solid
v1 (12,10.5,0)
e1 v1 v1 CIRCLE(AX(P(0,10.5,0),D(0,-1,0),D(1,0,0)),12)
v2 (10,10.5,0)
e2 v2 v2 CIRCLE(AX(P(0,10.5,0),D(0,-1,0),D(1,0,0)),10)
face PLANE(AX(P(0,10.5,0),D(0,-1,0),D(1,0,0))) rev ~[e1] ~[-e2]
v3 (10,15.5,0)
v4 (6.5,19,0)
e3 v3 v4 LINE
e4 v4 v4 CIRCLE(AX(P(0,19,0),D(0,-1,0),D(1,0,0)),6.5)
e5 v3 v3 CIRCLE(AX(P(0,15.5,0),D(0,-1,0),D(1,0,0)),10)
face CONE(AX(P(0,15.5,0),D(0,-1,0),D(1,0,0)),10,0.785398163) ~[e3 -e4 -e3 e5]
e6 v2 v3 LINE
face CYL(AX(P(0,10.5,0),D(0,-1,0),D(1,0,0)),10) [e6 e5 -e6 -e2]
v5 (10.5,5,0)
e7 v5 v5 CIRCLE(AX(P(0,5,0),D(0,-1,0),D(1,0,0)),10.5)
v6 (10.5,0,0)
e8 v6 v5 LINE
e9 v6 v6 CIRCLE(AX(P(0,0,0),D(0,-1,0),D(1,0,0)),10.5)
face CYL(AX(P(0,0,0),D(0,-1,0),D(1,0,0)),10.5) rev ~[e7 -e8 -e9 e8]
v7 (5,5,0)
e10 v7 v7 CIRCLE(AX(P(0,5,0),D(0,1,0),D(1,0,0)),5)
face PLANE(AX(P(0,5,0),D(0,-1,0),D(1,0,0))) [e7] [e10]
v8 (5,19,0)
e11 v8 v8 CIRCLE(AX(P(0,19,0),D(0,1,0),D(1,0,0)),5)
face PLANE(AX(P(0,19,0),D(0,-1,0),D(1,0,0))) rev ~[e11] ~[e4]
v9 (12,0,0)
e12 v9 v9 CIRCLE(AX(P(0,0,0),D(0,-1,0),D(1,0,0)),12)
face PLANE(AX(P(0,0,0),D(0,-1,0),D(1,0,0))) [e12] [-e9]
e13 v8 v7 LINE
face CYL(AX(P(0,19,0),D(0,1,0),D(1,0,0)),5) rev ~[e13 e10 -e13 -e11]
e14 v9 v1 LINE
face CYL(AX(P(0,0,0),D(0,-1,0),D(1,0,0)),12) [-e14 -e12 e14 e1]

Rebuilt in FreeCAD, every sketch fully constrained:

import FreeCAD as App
import Part
import Sketcher

V = App.Vector
Q = App.Units.Quantity


def edges_at(feature, points):
    """Names of the edges that pass closest to the given points."""
    edges = feature.Shape.Edges
    near = lambda p: min(range(len(edges)), key=lambda i: edges[i].distToShape(Part.Vertex(*p))[0])
    return sorted({f"Edge{near(p) + 1}" for p in points})

doc = App.newDocument("Part")
params = doc.addObject("Spreadsheet::Sheet", "Params")
for row, (alias, value) in enumerate([
    ("sketch1_diameter", "24 mm"),
    ("pad1_length", "19 mm"),
    ("sketch2_diameter", "24 mm"),
    ("sketch2_diameter2", "20 mm"),
    ("pocket1_length", "13 mm"),
    ("sketch3_diameter", "10 mm"),
    ("pocket2_length", "25 mm"),
    ("sketch4_diameter", "21 mm"),
    ("pocket3_length", "5 mm"),
    ("chamfer_size", "3.5 mm"),
], start=1):
    params.set(f"A{row}", alias)
    params.set(f"B{row}", "=" + value)
    params.setAlias(f"B{row}", alias)

body = doc.addObject("PartDesign::Body", "Body")

sketch1 = doc.addObject("Sketcher::SketchObject", "Sketch")
body.addObject(sketch1)
sketch1.AttachmentSupport = (doc.XZ_Plane, [""])
sketch1.MapMode = "FlatFace"
sketch1.addGeometry(Part.Circle(V(0, 0, 0), V(0, 0, 1), 12), False)
sketch1.addConstraint(Sketcher.Constraint("Coincident", 0, 3, -1, 1))
sketch1.addConstraint(Sketcher.Constraint("Diameter", 0, Q("24 mm")))
sketch1.setExpression("Constraints[1]", "Params.sketch1_diameter")
pad1 = doc.addObject("PartDesign::Pad", "Pad")
body.addObject(pad1)
pad1.Profile = sketch1
pad1.setExpression("Length", "Params.pad1_length")
pad1.Reversed = True

sketch2 = doc.addObject("Sketcher::SketchObject", "Sketch001")
body.addObject(sketch2)
sketch2.AttachmentSupport = (doc.XZ_Plane, [""])
sketch2.MapMode = "FlatFace"
sketch2.AttachmentOffset = App.Placement(V(0, 0, -10.5), App.Rotation())
sketch2.addGeometry(Part.Circle(V(0, 0, 0), V(0, 0, 1), 12), False)
sketch2.addGeometry(Part.Circle(V(0, 0, 0), V(0, 0, 1), 10), False)
sketch2.addConstraint(Sketcher.Constraint("Coincident", 0, 3, -1, 1))
sketch2.addConstraint(Sketcher.Constraint("Coincident", 1, 3, -1, 1))
sketch2.addConstraint(Sketcher.Constraint("Diameter", 0, Q("24 mm")))
sketch2.addConstraint(Sketcher.Constraint("Diameter", 1, Q("20 mm")))
sketch2.setExpression("Constraints[2]", "Params.sketch2_diameter")
sketch2.setExpression("Constraints[3]", "Params.sketch2_diameter2")
pocket1 = doc.addObject("PartDesign::Pocket", "Pocket")
body.addObject(pocket1)
pocket1.Profile = sketch2
pocket1.setExpression("Length", "Params.pocket1_length")

sketch3 = doc.addObject("Sketcher::SketchObject", "Sketch002")
body.addObject(sketch3)
sketch3.AttachmentSupport = (doc.XZ_Plane, [""])
sketch3.MapMode = "FlatFace"
sketch3.AttachmentOffset = App.Placement(V(0, 0, -19), App.Rotation())
sketch3.addGeometry(Part.Circle(V(0, 0, 0), V(0, 0, 1), 5), False)
sketch3.addConstraint(Sketcher.Constraint("Coincident", 0, 3, -1, 1))
sketch3.addConstraint(Sketcher.Constraint("Diameter", 0, Q("10 mm")))
sketch3.setExpression("Constraints[1]", "Params.sketch3_diameter")
pocket2 = doc.addObject("PartDesign::Pocket", "Pocket001")
body.addObject(pocket2)
pocket2.Profile = sketch3
pocket2.setExpression("Length", "Params.pocket2_length")
pocket2.Reversed = True

sketch4 = doc.addObject("Sketcher::SketchObject", "Sketch003")
body.addObject(sketch4)
sketch4.AttachmentSupport = (doc.XZ_Plane, [""])
sketch4.MapMode = "FlatFace"
sketch4.addGeometry(Part.Circle(V(0, 0, 0), V(0, 0, 1), 10), False)
sketch4.addConstraint(Sketcher.Constraint("Coincident", 0, 3, -1, 1))
sketch4.addConstraint(Sketcher.Constraint("Diameter", 0, Q("21 mm")))
sketch4.setExpression("Constraints[1]", "Params.sketch4_diameter")
pocket3 = doc.addObject("PartDesign::Pocket", "Pocket002")
body.addObject(pocket3)
pocket3.Profile = sketch4
pocket3.setExpression("Length", "Params.pocket3_length")
doc.recompute()

chamfer = doc.addObject("PartDesign::Chamfer", "Chamfer")
body.addObject(chamfer)
chamfer.Base = (pocket3, edges_at(pocket3, [(-10, 19, 0)]))
chamfer.setExpression("Size", "Params.chamfer_size")

doc.recompute()
